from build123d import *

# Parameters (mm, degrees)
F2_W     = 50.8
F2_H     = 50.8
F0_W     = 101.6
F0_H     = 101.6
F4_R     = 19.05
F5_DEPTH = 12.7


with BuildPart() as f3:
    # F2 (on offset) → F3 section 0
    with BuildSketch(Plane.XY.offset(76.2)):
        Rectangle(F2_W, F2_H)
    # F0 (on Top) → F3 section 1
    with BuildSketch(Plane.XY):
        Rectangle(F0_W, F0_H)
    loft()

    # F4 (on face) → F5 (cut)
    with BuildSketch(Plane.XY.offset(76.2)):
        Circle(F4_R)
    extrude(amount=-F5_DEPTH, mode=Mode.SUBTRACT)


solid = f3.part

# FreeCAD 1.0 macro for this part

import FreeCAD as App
import Part
import Sketcher
from FreeCAD import Vector
Q = App.Units.Quantity


def add_polygon(sketch, points):
    """Adds a closed chain of lines whose ends are joined by coincident constraints."""
    first, n = sketch.GeometryCount, len(points)
    for a, b in zip(points, points[1:] + points[:1]):
        sketch.addGeometry(Part.LineSegment(App.Vector(*a, 0), App.Vector(*b, 0)), False)
    for i in range(n):
        sketch.addConstraint(Sketcher.Constraint("Coincident", first + i, 2, first + (i + 1) % n, 1))

doc = App.newDocument("Part")
params = doc.addObject("Spreadsheet::Sheet", "Params")
for row, (alias, value) in enumerate([
    ("sketch1_width", "2 in"),
    ("sketch2_width", "4 in"),
    ("sketch3_diameter", "1.5 in"),
    ("pocket1_length", "0.5 in"),
], start=1):
    params.set(f"A{row}", alias)
    params.set(f"B{row}", "=" + value)
    params.setAlias(f"B{row}", alias)

body = doc.addObject("PartDesign::Body", "Body")

# Sketch on XY plane
sketch1 = body.newObject("Sketcher::SketchObject", "Sketch")
sketch1.AttachmentSupport = (doc.getObject("XY_Plane"), [""])
sketch1.MapMode = "FlatFace"
sketch1.AttachmentOffset = App.Placement(Vector(0, 0, 3 * 25.4), App.Rotation())
add_polygon(sketch1, [(-25, 25), (-25, -25), (25, -25), (25, 25)])  # lines 0-3
sketch1.addConstraint([
    Sketcher.Constraint("Vertical", 0),
    Sketcher.Constraint("Horizontal", 1),
    Sketcher.Constraint("Vertical", 2),
    Sketcher.Constraint("Horizontal", 3),
    Sketcher.Constraint("Symmetric", 0, 2, 2, 2, -1, 1),
    Sketcher.Constraint("Equal", 3, 0),
    Sketcher.Constraint("DistanceX", 1, 1, 1, 2, Q("2 in")),
])
sketch1.setExpression("Constraints[10]", "Params.sketch1_width")

# Sketch on XY plane
sketch2 = body.newObject("Sketcher::SketchObject", "Sketch001")
sketch2.AttachmentSupport = (doc.getObject("XY_Plane"), [""])
sketch2.MapMode = "FlatFace"
add_polygon(sketch2, [(-51, 51), (-51, -51), (51, -51), (51, 51)])  # lines 0-3
sketch2.addConstraint([
    Sketcher.Constraint("Vertical", 0),
    Sketcher.Constraint("Horizontal", 1),
    Sketcher.Constraint("Vertical", 2),
    Sketcher.Constraint("Horizontal", 3),
    Sketcher.Constraint("Symmetric", 0, 2, 2, 2, -1, 1),
    Sketcher.Constraint("Equal", 3, 0),
    Sketcher.Constraint("DistanceX", 1, 1, 1, 2, Q("4 in")),
])
sketch2.setExpression("Constraints[10]", "Params.sketch2_width")

additiveloft = body.newObject("PartDesign::AdditiveLoft", "AdditiveLoft")
additiveloft.Profile = sketch1
additiveloft.Sections = [sketch2]

# Sketch on XY plane
sketch3 = body.newObject("Sketcher::SketchObject", "Sketch002")
sketch3.AttachmentSupport = (doc.getObject("XY_Plane"), [""])
sketch3.MapMode = "FlatFace"
sketch3.AttachmentOffset = App.Placement(Vector(0, 0, 3 * 25.4), App.Rotation())
sketch3.addGeometry(Part.Circle(Vector(0, 0, 0), Vector(0, 0, 1), 19), False)
sketch3.addConstraint([
    Sketcher.Constraint("Coincident", 0, 3, -1, 1),
    Sketcher.Constraint("Diameter", 0, Q("1.5 in")),
])
sketch3.setExpression("Constraints[1]", "Params.sketch3_diameter")
pocket1 = body.newObject("PartDesign::Pocket", "Pocket")
pocket1.Profile = sketch3
pocket1.setExpression("Length", "Params.pocket1_length")

doc.recompute()
